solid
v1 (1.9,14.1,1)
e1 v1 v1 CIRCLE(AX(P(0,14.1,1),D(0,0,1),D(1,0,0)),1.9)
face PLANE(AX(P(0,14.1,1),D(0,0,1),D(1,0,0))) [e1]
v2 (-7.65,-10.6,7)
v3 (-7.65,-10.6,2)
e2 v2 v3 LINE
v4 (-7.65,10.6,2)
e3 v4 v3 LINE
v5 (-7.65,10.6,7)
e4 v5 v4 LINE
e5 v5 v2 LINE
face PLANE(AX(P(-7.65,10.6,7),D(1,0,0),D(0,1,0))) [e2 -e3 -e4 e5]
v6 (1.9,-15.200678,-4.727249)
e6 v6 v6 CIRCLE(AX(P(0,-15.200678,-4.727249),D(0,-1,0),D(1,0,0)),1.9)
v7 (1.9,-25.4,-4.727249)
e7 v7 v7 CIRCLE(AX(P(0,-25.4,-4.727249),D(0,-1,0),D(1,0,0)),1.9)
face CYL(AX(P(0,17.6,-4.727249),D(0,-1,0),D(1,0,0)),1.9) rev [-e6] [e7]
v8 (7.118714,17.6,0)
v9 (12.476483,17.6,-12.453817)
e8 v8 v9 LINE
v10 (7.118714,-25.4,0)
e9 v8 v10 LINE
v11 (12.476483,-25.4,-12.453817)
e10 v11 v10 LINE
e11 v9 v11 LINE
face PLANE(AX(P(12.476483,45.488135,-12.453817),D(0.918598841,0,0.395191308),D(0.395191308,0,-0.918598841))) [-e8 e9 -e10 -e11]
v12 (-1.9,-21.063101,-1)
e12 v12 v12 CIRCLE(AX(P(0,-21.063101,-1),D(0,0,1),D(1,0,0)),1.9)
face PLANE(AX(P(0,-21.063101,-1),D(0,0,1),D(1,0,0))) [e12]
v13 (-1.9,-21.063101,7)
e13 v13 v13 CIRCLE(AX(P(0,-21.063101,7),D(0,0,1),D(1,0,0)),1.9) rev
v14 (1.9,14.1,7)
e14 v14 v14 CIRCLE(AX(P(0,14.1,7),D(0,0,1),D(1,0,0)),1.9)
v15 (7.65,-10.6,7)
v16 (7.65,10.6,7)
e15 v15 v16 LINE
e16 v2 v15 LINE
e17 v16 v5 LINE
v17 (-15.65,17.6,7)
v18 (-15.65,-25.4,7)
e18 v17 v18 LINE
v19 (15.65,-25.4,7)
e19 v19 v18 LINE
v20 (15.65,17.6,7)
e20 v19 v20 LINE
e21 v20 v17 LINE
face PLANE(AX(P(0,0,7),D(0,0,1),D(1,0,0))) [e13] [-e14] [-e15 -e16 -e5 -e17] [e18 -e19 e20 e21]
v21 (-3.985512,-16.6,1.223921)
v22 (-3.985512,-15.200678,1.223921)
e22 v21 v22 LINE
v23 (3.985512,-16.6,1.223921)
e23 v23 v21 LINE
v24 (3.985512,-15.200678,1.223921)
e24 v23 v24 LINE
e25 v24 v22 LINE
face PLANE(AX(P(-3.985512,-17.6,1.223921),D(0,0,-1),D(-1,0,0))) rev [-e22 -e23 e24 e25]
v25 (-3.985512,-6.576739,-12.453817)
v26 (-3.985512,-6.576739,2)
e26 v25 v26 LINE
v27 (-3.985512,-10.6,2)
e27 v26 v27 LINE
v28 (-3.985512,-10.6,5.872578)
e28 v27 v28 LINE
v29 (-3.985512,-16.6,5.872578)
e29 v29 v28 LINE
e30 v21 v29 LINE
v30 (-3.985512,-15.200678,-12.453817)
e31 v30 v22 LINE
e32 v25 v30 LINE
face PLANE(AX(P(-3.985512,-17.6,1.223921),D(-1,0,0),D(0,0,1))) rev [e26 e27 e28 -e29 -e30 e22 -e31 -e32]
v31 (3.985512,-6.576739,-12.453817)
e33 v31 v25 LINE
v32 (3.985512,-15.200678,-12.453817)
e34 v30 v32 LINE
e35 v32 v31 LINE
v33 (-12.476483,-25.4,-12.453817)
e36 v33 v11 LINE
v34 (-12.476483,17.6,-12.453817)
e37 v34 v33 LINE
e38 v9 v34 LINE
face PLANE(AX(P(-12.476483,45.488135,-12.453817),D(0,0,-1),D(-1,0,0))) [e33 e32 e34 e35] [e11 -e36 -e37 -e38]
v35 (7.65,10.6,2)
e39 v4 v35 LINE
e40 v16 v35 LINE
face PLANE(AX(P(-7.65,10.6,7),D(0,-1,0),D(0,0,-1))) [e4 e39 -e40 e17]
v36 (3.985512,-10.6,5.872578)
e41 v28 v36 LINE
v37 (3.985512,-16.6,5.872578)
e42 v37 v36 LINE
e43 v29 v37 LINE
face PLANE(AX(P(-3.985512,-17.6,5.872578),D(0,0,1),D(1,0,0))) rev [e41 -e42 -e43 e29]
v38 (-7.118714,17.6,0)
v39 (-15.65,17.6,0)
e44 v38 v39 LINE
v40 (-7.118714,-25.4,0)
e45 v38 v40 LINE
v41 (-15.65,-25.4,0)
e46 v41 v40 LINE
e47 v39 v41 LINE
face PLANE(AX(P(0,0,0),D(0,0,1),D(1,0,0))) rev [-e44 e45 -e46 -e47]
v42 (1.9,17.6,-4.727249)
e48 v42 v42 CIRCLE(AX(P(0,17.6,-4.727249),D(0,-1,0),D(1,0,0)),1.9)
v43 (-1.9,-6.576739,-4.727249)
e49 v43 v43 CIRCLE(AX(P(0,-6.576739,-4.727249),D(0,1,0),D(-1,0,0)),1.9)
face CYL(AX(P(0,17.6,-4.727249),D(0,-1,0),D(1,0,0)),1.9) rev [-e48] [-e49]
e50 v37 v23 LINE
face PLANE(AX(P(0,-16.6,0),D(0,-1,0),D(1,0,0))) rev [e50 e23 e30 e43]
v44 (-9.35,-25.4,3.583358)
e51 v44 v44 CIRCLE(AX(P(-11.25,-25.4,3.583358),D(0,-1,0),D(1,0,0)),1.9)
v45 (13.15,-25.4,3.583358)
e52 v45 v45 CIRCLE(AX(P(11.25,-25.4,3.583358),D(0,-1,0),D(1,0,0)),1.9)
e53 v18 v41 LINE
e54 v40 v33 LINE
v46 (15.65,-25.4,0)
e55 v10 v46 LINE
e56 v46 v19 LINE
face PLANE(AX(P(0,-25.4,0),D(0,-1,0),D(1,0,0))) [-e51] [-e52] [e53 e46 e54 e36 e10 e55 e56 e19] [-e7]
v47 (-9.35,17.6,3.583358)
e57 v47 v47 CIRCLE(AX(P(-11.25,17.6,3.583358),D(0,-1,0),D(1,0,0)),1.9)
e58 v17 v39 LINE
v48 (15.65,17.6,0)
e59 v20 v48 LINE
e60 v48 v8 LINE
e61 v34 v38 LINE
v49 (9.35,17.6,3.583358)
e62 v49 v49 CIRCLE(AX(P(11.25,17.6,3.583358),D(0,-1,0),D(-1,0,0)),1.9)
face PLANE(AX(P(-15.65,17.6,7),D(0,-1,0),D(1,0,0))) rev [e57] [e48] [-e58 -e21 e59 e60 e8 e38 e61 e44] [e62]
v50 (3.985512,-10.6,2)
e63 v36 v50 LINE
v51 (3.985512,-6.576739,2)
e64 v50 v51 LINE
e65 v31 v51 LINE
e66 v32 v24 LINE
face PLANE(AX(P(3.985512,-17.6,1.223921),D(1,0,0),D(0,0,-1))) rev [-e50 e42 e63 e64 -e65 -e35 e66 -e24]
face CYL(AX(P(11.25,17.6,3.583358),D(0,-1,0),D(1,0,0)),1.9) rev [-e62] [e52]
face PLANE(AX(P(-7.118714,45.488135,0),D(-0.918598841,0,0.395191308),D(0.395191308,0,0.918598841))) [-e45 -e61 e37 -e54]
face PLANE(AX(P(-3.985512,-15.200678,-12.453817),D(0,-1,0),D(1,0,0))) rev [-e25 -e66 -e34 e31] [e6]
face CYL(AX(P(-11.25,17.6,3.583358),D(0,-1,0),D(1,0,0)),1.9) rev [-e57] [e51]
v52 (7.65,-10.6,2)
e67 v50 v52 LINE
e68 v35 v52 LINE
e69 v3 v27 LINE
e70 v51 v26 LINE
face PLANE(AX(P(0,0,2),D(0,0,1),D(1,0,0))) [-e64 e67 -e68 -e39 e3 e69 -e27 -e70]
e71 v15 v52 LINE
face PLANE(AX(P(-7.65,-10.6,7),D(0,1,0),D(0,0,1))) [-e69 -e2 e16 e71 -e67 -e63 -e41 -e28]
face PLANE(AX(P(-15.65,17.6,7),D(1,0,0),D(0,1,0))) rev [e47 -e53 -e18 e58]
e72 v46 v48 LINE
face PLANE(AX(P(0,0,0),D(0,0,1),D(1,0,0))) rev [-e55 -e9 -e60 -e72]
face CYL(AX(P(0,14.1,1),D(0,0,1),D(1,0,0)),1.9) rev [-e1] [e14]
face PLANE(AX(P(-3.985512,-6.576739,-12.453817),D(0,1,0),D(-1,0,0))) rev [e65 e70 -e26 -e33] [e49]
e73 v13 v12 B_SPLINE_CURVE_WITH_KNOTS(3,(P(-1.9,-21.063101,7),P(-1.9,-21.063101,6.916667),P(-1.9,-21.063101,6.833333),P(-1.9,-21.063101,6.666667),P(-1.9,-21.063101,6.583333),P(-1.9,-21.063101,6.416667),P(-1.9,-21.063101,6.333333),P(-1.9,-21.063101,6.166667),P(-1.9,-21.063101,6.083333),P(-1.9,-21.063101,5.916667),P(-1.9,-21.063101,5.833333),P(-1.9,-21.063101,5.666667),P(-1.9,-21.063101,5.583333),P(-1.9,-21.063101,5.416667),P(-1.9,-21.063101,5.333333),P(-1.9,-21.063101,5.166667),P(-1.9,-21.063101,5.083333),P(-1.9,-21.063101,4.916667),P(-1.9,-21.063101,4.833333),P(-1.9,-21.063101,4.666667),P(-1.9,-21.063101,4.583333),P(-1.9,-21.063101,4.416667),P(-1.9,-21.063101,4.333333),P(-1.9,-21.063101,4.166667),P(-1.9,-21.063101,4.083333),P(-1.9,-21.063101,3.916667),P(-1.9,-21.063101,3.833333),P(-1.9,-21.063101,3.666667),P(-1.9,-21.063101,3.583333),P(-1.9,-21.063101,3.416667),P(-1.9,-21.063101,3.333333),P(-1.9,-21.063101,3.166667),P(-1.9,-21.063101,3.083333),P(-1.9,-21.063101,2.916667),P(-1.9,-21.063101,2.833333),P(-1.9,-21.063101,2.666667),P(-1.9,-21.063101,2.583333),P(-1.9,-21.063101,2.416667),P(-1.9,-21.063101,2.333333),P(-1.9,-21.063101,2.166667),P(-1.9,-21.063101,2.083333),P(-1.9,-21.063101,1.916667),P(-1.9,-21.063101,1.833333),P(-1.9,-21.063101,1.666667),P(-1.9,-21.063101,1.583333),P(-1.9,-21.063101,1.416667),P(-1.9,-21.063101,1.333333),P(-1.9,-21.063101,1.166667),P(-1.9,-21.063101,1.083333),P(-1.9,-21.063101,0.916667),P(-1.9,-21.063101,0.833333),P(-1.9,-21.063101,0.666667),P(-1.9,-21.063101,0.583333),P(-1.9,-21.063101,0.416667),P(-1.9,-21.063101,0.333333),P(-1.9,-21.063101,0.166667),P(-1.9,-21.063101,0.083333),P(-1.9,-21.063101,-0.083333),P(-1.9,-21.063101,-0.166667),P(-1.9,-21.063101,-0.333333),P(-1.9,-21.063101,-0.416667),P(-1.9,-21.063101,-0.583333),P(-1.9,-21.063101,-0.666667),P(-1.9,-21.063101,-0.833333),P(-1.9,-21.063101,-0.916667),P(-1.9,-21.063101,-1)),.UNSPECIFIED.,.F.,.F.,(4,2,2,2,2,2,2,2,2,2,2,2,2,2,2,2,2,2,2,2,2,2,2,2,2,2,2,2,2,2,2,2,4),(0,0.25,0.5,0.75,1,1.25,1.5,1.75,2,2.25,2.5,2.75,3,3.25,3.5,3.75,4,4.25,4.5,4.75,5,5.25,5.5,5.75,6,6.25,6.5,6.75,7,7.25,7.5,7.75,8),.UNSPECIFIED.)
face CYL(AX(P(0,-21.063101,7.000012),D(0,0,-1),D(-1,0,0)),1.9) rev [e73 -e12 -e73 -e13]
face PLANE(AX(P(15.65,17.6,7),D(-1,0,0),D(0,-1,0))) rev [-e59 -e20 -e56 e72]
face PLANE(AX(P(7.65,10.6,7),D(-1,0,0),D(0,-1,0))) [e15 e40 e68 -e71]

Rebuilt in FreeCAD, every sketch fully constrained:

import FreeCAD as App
import Part
import Sketcher
from FreeCAD import Vector
Q = App.Units.Quantity


def add_polygon(sketch, points):
    """Adds a closed chain of lines whose ends are joined by coincident constraints."""
    first, n = sketch.GeometryCount, len(points)
    for a, b in zip(points, points[1:] + points[:1]):
        sketch.addGeometry(Part.LineSegment(App.Vector(*a, 0), App.Vector(*b, 0)), False)
    for i in range(n):
        sketch.addConstraint(Sketcher.Constraint("Coincident", first + i, 2, first + (i + 1) % n, 1))

doc = App.newDocument("Part")
body = doc.addObject("PartDesign::Body", "Body")

# Sketch on XY plane
sketch1 = body.newObject("Sketcher::SketchObject", "Sketch")
sketch1.AttachmentSupport = (doc.getObject("XY_Plane"), [""])
sketch1.MapMode = "FlatFace"
add_polygon(sketch1, [(-16, 18), (-16, -17), (16, -17), (16, 18)])  # lines 0-3
add_polygon(sketch1, [(8, -11), (-8, -11), (-8, 11), (8, 11)])  # lines 4-7
sketch1.addConstraint(Sketcher.Constraint("Vertical", 0))
sketch1.addConstraint(Sketcher.Constraint("Horizontal", 1))
sketch1.addConstraint(Sketcher.Constraint("Vertical", 2))
sketch1.addConstraint(Sketcher.Constraint("Horizontal", 3))
sketch1.addConstraint(Sketcher.Constraint("Horizontal", 4))
sketch1.addConstraint(Sketcher.Constraint("Vertical", 5))
sketch1.addConstraint(Sketcher.Constraint("Horizontal", 6))
sketch1.addConstraint(Sketcher.Constraint("Vertical", 7))
sketch1.addConstraint(Sketcher.Constraint("Symmetric", 4, 2, 6, 2, -1, 1))
sketch1.addConstraint(Sketcher.Constraint("DistanceX", 1, 1, 1, 2, Q("31.3 mm")))
sketch1.addConstraint(Sketcher.Constraint("DistanceX", 4, 2, 4, 1, Q("15.3 mm")))
sketch1.addConstraint(Sketcher.Constraint("DistanceY", 0, 2, 0, 1, Q("34.2 mm")))
sketch1.addConstraint(Sketcher.Constraint("DistanceY", 5, 1, 5, 2, Q("21.2 mm")))
sketch1.addConstraint(Sketcher.Constraint("DistanceX", 0, 2, 4, 2, Q("8 mm")))
sketch1.addConstraint(Sketcher.Constraint("DistanceY", 0, 2, 4, 2, Q("6 mm")))
pad1 = body.newObject("PartDesign::Pad", "Pad")
pad1.Profile = sketch1
pad1.Length = 7

# Sketch on XY plane
sketch2 = body.newObject("Sketcher::SketchObject", "Sketch001")
sketch2.AttachmentSupport = (doc.getObject("XY_Plane"), [""])
sketch2.MapMode = "FlatFace"
add_polygon(sketch2, [(-8, 11), (-8, -11), (8, -11), (8, 11)])  # lines 0-3
sketch2.addConstraint(Sketcher.Constraint("Vertical", 0))
sketch2.addConstraint(Sketcher.Constraint("Horizontal", 1))
sketch2.addConstraint(Sketcher.Constraint("Vertical", 2))
sketch2.addConstraint(Sketcher.Constraint("Horizontal", 3))
sketch2.addConstraint(Sketcher.Constraint("Symmetric", 0, 2, 2, 2, -1, 1))
sketch2.addConstraint(Sketcher.Constraint("DistanceX", 1, 1, 1, 2, Q("15.3 mm")))
sketch2.addConstraint(Sketcher.Constraint("DistanceY", 0, 2, 0, 1, Q("21.2 mm")))
pad2 = body.newObject("PartDesign::Pad", "Pad001")
pad2.Profile = sketch2
pad2.Length = 2

# Sketch on XZ plane
sketch3 = body.newObject("Sketcher::SketchObject", "Sketch002")
sketch3.AttachmentSupport = (doc.getObject("XZ_Plane"), [""])
sketch3.MapMode = "FlatFace"
sketch3.AttachmentOffset = App.Placement(Vector(0, 0, 10.6), App.Rotation())
add_polygon(sketch3, [(-4, 1.2), (-4, 5.9), (4, 5.9), (4, 1.2)])  # lines 0-3
sketch3.addConstraint(Sketcher.Constraint("Vertical", 0))
sketch3.addConstraint(Sketcher.Constraint("Horizontal", 1))
sketch3.addConstraint(Sketcher.Constraint("Vertical", 2))
sketch3.addConstraint(Sketcher.Constraint("Horizontal", 3))
sketch3.addConstraint(Sketcher.Constraint("DistanceX", 1, 1, 1, 2, Q("7.971024 mm")))
sketch3.addConstraint(Sketcher.Constraint("DistanceY", 0, 1, 0, 2, Q("4.648657 mm")))
sketch3.addConstraint(Sketcher.Constraint("DistanceX", 0, 2, -1, 1, Q("3.985512 mm")))
sketch3.addConstraint(Sketcher.Constraint("DistanceY", -1, 1, 2, 2, Q("1.223921 mm")))
pocket1 = body.newObject("PartDesign::Pocket", "Pocket")
pocket1.Profile = sketch3
pocket1.Length = 7
pocket1.Reversed = True

# Sketch on XZ plane
sketch4 = body.newObject("Sketcher::SketchObject", "Sketch003")
sketch4.AttachmentSupport = (doc.getObject("XZ_Plane"), [""])
sketch4.MapMode = "FlatFace"
sketch4.AttachmentOffset = App.Placement(Vector(0, 0, 16.6), App.Rotation())
sketch4.addGeometry(Part.Circle(Vector(-11.2, 3.6, 0), Vector(0, 0, 1), 1.9), False)
sketch4.addGeometry(Part.Circle(Vector(11.2, 3.6, 0), Vector(0, 0, 1), 1.9), False)
sketch4.addConstraint(Sketcher.Constraint("Equal", 0, 1))
sketch4.addConstraint(Sketcher.Constraint("Symmetric", 0, 3, 1, 3, -2))
sketch4.addConstraint(Sketcher.Constraint("Diameter", 0, Q("3.8 mm")))
sketch4.addConstraint(Sketcher.Constraint("DistanceX", 0, 3, 1, 3, Q("22.5 mm")))
sketch4.addConstraint(Sketcher.Constraint("DistanceY", -1, 1, 0, 3, Q("3.583358 mm")))
pocket2 = body.newObject("PartDesign::Pocket", "Pocket001")
pocket2.Profile = sketch4
pocket2.Type = "ThroughAll"
pocket2.Midplane = True

# Sketch on XZ plane
sketch5 = body.newObject("Sketcher::SketchObject", "Sketch004")
sketch5.AttachmentSupport = (doc.getObject("XZ_Plane"), [""])
sketch5.MapMode = "FlatFace"
sketch5.AttachmentOffset = App.Placement(Vector(0, 0, 16.6), App.Rotation())
add_polygon(sketch5, [(7, 0), (-7, 0), (-12, -12), (12, -12)])  # lines 0-3
sketch5.addConstraint(Sketcher.Constraint("Horizontal", 0))
sketch5.addConstraint(Sketcher.Constraint("Horizontal", 2))
sketch5.addConstraint(Sketcher.Constraint("Symmetric", 0, 2, 3, 2, -1, 1))
sketch5.addConstraint(Sketcher.Constraint("Equal", 1, 3))
sketch5.addConstraint(Sketcher.Constraint("DistanceX", 0, 2, 0, 1, Q("14.237428 mm")))
sketch5.addConstraint(Sketcher.Constraint("DistanceX", 2, 1, 2, 2, Q("24.952966 mm")))
sketch5.addConstraint(Sketcher.Constraint("Distance", 1, Q("13.557406 mm")))
pad3 = body.newObject("PartDesign::Pad", "Pad002")
pad3.Profile = sketch5
pad3.Length = 34.2
pad3.Reversed = True

# Sketch on XY plane
sketch6 = body.newObject("Sketcher::SketchObject", "Sketch005")
sketch6.AttachmentSupport = (doc.getObject("XY_Plane"), [""])
sketch6.MapMode = "FlatFace"
sketch6.AttachmentOffset = App.Placement(Vector(0, 0, 7), App.Rotation())
sketch6.addGeometry(Part.Circle(Vector(0, 14.1, 0), Vector(0, 0, 1), 1.9), False)
sketch6.addConstraint(Sketcher.Constraint("PointOnObject", 0, 3, -2))
sketch6.addConstraint(Sketcher.Constraint("Diameter", 0, Q("3.8 mm")))
sketch6.addConstraint(Sketcher.Constraint("DistanceY", -1, 1, 0, 3, Q("14.1 mm")))
pocket3 = body.newObject("PartDesign::Pocket", "Pocket002")
pocket3.Profile = sketch6
pocket3.Length = 6

# Sketch on XY plane
sketch7 = body.newObject("Sketcher::SketchObject", "Sketch006")
sketch7.AttachmentSupport = (doc.getObject("XY_Plane"), [""])
sketch7.MapMode = "FlatFace"
sketch7.AttachmentOffset = App.Placement(Vector(0, 0, 2), App.Rotation())
add_polygon(sketch7, [(-4, -7), (-4, -15), (4, -15), (4, -7)])  # lines 0-3
sketch7.addConstraint(Sketcher.Constraint("Vertical", 0))
sketch7.addConstraint(Sketcher.Constraint("Horizontal", 1))
sketch7.addConstraint(Sketcher.Constraint("Vertical", 2))
sketch7.addConstraint(Sketcher.Constraint("Horizontal", 3))
sketch7.addConstraint(Sketcher.Constraint("DistanceY", 0, 2, 0, 1, Q("8.623939 mm")))
sketch7.addConstraint(Sketcher.Constraint("DistanceX", 1, 1, 1, 2, Q("7.971024 mm")))
sketch7.addConstraint(Sketcher.Constraint("DistanceX", 0, 2, -1, 1, Q("3.985512 mm")))
sketch7.addConstraint(Sketcher.Constraint("DistanceY", 0, 2, -1, 1, Q("15.200678 mm")))
pocket4 = body.newObject("PartDesign::Pocket", "Pocket003")
pocket4.Profile = sketch7
pocket4.Type = "ThroughAll"

# Sketch on XZ plane
sketch8 = body.newObject("Sketcher::SketchObject", "Sketch007")
sketch8.AttachmentSupport = (doc.getObject("XZ_Plane"), [""])
sketch8.MapMode = "FlatFace"
sketch8.AttachmentOffset = App.Placement(Vector(0, 0, 25.4), App.Rotation())
add_polygon(sketch8, [(-15.7, 7), (-15.7, 0), (-7.1, 0), (-12.5, -12.5), (12.5, -12.5), (7.1, 0), (15.7, 0), (15.7, 7)])  # lines 0-7
sketch8.addGeometry(Part.Circle(Vector(-11.2, 3.6, 0), Vector(0, 0, 1), 1.9), False)  # 8
sketch8.addGeometry(Part.Circle(Vector(11.2, 3.6, 0), Vector(0, 0, 1), 1.9), False)  # 9
sketch8.addConstraint(Sketcher.Constraint("Vertical", 0))
sketch8.addConstraint(Sketcher.Constraint("Horizontal", 1))
sketch8.addConstraint(Sketcher.Constraint("Horizontal", 3))
sketch8.addConstraint(Sketcher.Constraint("Horizontal", 5))
sketch8.addConstraint(Sketcher.Constraint("Vertical", 6))
sketch8.addConstraint(Sketcher.Constraint("Horizontal", 7))
sketch8.addConstraint(Sketcher.Constraint("Equal", 8, 9))
sketch8.addConstraint(Sketcher.Constraint("Symmetric", 1, 2, 4, 2, -1, 1))
sketch8.addConstraint(Sketcher.Constraint("Symmetric", 8, 3, 9, 3, -2))
sketch8.addConstraint(Sketcher.Constraint("Symmetric", 0, 2, 5, 2, -2))
sketch8.addConstraint(Sketcher.Constraint("Equal", 2, 4))
sketch8.addConstraint(Sketcher.Constraint("Diameter", 8, Q("3.8 mm")))
sketch8.addConstraint(Sketcher.Constraint("DistanceY", 0, 2, 0, 1, Q("7 mm")))
sketch8.addConstraint(Sketcher.Constraint("DistanceX", 7, 2, 7, 1, Q("31.3 mm")))
sketch8.addConstraint(Sketcher.Constraint("DistanceX", 8, 3, 9, 3, Q("22.5 mm")))
sketch8.addConstraint(Sketcher.Constraint("DistanceX", 1, 1, 1, 2, Q("8.531286 mm")))
sketch8.addConstraint(Sketcher.Constraint("DistanceX", 3, 1, 3, 2, Q("24.952966 mm")))
sketch8.addConstraint(Sketcher.Constraint("Distance", 2, Q("13.557406 mm")))
sketch8.addConstraint(Sketcher.Constraint("DistanceY", -1, 1, 8, 3, Q("3.583358 mm")))
pad4 = body.newObject("PartDesign::Pad", "Pad003")
pad4.Profile = sketch8
pad4.Length = 8.8
pad4.Reversed = True

# Sketch on XY plane
sketch9 = body.newObject("Sketcher::SketchObject", "Sketch008")
sketch9.AttachmentSupport = (doc.getObject("XY_Plane"), [""])
sketch9.MapMode = "FlatFace"
sketch9.AttachmentOffset = App.Placement(Vector(0, 0, 7), App.Rotation())
sketch9.addGeometry(Part.Circle(Vector(0, -21.1, 0), Vector(0, 0, 1), 1.9), False)
sketch9.addConstraint(Sketcher.Constraint("PointOnObject", 0, 3, -2))
sketch9.addConstraint(Sketcher.Constraint("Diameter", 0, Q("3.8 mm")))
sketch9.addConstraint(Sketcher.Constraint("DistanceY", 0, 3, -1, 1, Q("21.063101 mm")))
pocket5 = body.newObject("PartDesign::Pocket", "Pocket004")
pocket5.Profile = sketch9
pocket5.Type = "TwoLengths"
pocket5.Length = 36.616478
pocket5.Length2 = 8
pocket5.Reversed = True

# Sketch on XZ plane
sketch10 = body.newObject("Sketcher::SketchObject", "Sketch009")
sketch10.AttachmentSupport = (doc.getObject("XZ_Plane"), [""])
sketch10.MapMode = "FlatFace"
sketch10.AttachmentOffset = App.Placement(Vector(0, 0, 25.4), App.Rotation())
sketch10.addGeometry(Part.Circle(Vector(0, -4.7, 0), Vector(0, 0, 1), 1.9), False)
sketch10.addConstraint(Sketcher.Constraint("PointOnObject", 0, 3, -2))
sketch10.addConstraint(Sketcher.Constraint("Diameter", 0, Q("3.8 mm")))
sketch10.addConstraint(Sketcher.Constraint("DistanceY", 0, 3, -1, 1, Q("4.727249 mm")))
pocket6 = body.newObject("PartDesign::Pocket", "Pocket005")
pocket6.Profile = sketch10
pocket6.Type = "ThroughAll"
pocket6.Midplane = True

doc.recompute()
